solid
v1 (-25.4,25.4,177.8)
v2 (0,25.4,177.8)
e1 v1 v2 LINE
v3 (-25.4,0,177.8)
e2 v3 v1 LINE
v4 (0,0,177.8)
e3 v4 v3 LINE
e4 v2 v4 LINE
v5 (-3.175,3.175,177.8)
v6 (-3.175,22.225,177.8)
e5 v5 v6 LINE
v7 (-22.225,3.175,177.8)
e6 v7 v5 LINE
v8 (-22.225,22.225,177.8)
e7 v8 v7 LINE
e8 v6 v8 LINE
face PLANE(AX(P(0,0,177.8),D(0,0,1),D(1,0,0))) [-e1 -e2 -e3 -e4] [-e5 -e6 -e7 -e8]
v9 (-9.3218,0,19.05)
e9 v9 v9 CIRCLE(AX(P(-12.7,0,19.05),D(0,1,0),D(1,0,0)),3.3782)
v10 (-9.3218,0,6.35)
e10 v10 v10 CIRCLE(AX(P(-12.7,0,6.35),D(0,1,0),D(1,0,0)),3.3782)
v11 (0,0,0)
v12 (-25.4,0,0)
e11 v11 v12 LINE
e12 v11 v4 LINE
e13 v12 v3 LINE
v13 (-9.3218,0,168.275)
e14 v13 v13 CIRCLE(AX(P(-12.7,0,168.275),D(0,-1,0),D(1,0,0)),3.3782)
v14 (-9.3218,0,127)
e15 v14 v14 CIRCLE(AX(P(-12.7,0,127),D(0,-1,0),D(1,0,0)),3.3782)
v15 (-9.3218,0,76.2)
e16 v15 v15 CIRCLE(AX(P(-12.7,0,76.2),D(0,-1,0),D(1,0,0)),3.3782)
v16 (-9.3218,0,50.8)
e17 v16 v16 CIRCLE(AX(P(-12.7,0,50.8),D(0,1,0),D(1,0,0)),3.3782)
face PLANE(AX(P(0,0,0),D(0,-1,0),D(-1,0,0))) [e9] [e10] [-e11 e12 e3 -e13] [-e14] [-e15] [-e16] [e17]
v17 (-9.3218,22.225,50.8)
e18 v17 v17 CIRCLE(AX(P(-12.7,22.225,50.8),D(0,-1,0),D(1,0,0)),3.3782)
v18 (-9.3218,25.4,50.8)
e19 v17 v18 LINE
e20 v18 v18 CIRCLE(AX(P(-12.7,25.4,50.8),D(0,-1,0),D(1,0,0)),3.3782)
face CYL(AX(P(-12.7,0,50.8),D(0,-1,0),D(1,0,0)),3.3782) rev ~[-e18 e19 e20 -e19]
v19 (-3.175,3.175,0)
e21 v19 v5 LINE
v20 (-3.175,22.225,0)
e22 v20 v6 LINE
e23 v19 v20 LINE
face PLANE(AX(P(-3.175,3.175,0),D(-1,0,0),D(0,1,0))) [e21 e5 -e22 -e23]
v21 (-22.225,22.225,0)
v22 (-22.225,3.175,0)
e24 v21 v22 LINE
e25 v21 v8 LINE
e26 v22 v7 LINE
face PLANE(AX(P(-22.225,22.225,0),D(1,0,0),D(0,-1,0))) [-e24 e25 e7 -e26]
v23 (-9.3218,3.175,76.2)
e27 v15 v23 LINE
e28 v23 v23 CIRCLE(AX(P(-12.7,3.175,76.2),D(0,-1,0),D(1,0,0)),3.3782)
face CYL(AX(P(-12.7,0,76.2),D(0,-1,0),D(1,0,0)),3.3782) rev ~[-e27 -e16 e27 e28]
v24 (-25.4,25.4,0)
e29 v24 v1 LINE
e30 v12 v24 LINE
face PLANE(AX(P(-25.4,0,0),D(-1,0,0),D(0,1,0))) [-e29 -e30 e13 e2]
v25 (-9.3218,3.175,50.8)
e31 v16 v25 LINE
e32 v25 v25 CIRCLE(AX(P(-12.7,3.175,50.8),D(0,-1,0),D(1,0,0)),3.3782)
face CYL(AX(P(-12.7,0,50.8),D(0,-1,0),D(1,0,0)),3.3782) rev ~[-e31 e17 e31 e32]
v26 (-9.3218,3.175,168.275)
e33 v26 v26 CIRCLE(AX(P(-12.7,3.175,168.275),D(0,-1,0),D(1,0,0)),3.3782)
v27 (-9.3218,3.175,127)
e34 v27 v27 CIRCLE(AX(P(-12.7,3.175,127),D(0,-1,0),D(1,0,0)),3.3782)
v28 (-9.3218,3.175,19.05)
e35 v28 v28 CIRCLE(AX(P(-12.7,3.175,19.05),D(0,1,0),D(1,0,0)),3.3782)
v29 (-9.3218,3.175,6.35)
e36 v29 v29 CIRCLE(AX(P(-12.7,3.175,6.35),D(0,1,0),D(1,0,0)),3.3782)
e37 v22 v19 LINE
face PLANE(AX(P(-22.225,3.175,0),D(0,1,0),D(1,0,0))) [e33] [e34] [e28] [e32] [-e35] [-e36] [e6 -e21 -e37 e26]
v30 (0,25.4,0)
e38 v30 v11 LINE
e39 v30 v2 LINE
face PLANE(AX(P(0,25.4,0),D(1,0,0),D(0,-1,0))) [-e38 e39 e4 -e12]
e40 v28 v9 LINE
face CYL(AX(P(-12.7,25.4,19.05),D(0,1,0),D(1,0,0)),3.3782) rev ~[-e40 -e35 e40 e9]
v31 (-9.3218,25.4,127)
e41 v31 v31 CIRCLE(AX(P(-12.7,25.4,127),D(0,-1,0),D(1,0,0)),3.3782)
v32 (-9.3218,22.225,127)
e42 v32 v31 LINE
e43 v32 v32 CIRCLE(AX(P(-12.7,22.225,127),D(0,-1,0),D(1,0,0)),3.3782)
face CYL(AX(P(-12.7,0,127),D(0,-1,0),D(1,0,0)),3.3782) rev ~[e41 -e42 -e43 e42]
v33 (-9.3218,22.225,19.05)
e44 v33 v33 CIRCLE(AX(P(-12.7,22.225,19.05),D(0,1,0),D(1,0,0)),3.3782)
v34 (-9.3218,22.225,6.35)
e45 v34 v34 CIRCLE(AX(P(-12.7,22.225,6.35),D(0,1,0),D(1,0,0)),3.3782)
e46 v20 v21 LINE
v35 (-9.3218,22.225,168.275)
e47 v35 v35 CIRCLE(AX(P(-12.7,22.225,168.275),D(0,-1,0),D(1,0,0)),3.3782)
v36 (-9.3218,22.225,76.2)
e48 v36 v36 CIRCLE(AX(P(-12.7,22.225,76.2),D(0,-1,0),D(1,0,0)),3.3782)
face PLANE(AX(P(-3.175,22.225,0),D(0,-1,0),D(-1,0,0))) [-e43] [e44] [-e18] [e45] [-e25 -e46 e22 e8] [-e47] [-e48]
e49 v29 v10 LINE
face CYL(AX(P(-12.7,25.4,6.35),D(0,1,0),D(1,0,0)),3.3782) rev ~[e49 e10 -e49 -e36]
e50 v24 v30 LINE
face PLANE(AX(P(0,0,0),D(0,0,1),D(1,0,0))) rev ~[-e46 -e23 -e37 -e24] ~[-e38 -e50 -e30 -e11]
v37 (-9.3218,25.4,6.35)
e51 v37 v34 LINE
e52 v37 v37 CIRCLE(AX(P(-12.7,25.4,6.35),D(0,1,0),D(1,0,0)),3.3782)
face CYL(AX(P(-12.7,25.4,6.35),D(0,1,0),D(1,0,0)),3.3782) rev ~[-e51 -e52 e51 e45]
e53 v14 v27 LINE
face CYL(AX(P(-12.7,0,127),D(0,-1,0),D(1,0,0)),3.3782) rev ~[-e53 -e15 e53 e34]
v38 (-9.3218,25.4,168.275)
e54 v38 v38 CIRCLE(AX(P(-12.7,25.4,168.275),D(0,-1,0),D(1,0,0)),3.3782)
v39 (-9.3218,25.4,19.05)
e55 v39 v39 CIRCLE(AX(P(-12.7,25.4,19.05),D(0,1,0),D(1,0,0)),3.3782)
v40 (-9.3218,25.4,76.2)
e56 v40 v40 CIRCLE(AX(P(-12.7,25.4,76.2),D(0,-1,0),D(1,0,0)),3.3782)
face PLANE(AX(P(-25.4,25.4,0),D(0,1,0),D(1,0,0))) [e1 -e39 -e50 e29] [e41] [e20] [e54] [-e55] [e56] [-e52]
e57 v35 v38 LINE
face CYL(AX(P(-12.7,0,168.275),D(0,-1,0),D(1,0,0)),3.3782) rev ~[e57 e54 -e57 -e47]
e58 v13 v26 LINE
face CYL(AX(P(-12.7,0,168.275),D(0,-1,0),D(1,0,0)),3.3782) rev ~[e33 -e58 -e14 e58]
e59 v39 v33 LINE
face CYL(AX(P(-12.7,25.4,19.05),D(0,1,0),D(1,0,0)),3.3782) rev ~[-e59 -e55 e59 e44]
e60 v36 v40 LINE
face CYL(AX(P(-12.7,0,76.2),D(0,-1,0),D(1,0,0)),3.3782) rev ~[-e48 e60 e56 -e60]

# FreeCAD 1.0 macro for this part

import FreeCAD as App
import Part
import Sketcher
Q = App.Units.Quantity


def add_polygon(sketch, points):
    """Adds a closed chain of lines whose ends are joined by coincident constraints."""
    first, n = sketch.GeometryCount, len(points)
    for a, b in zip(points, points[1:] + points[:1]):
        sketch.addGeometry(Part.LineSegment(App.Vector(*a, 0), App.Vector(*b, 0)), False)
    for i in range(n):
        sketch.addConstraint(Sketcher.Constraint("Coincident", first + i, 2, first + (i + 1) % n, 1))

doc = App.newDocument("Part")
params = doc.addObject("Spreadsheet::Sheet", "Params")
for row, (alias, value) in enumerate([
    ("sketch1_width", "1 in"),
    ("pad1_length", "7 in"),
    ("sketch2_diameter", "0.266 in"),
    ("pocket1_length", "1 in"),
    ("sketch3_diameter", "0.266 in"),
    ("pocket2_length", "1 in"),
    ("sketch4_diameter", "0.266 in"),
    ("pocket3_length", "1 in"),
], start=1):
    params.set(f"A{row}", alias)
    params.set(f"B{row}", "=" + value)
    params.setAlias(f"B{row}", alias)

body = doc.addObject("PartDesign::Body", "Body")

sketch1 = body.newObject("Sketcher::SketchObject", "Sketch")
sketch1.AttachmentSupport = (doc.getObject("XY_Plane"), [""])
sketch1.MapMode = "FlatFace"
add_polygon(sketch1, [(-25.4, 0), (0, 0), (0, 25.4), (-25.4, 25.4)])
add_polygon(sketch1, [(-22.225, 22.225), (-3.175, 22.225), (-3.175, 3.175), (-22.225, 3.175)])
sketch1.addConstraint(Sketcher.Constraint("Horizontal", 0))
sketch1.addConstraint(Sketcher.Constraint("Vertical", 1))
sketch1.addConstraint(Sketcher.Constraint("Horizontal", 2))
sketch1.addConstraint(Sketcher.Constraint("Vertical", 3))
sketch1.addConstraint(Sketcher.Constraint("Horizontal", 4))
sketch1.addConstraint(Sketcher.Constraint("Vertical", 5))
sketch1.addConstraint(Sketcher.Constraint("Horizontal", 6))
sketch1.addConstraint(Sketcher.Constraint("Vertical", 7))
sketch1.addConstraint(Sketcher.Constraint("Coincident", 0, 2, -1, 1))
sketch1.addConstraint(Sketcher.Constraint("Equal", 2, 1))
sketch1.addConstraint(Sketcher.Constraint("Equal", 6, 5))
sketch1.addConstraint(Sketcher.Constraint("DistanceX", 0, 1, 0, 2, Q("1 in")))
sketch1.addConstraint(Sketcher.Constraint("DistanceX", 4, 2, -1, 1, Q("0.125 in")))
sketch1.addConstraint(Sketcher.Constraint("DistanceY", -1, 1, 5, 2, Q("0.125 in")))
sketch1.addConstraint(Sketcher.Constraint("DistanceY", 4, 2, 1, 2, Q("0.125 in")))
sketch1.setExpression("Constraints[19]", "Params.sketch1_width")
pad1 = body.newObject("PartDesign::Pad", "Pad")
pad1.Profile = sketch1
pad1.setExpression("Length", "Params.pad1_length")

sketch2 = body.newObject("Sketcher::SketchObject", "Sketch001")
sketch2.AttachmentSupport = (doc.getObject("XZ_Plane"), [""])
sketch2.MapMode = "FlatFace"
sketch2.AttachmentOffset = App.Placement(App.Vector(0, 0, -1 * 25.4), App.Rotation())
sketch2.addGeometry(Part.Circle(App.Vector(-12.7, 19.05, 0), App.Vector(0, 0, 1), 3.3782), False)
sketch2.addGeometry(Part.Circle(App.Vector(-12.7, 6.35, 0), App.Vector(0, 0, 1), 3.3782), False)
sketch2.addConstraint(Sketcher.Constraint("Equal", 0, 1))
sketch2.addConstraint(Sketcher.Constraint("Vertical", 0, 3, 1, 3))
sketch2.addConstraint(Sketcher.Constraint("Diameter", 0, Q("0.266 in")))
sketch2.addConstraint(Sketcher.Constraint("DistanceX", 0, 3, -1, 1, Q("0.5 in")))
sketch2.addConstraint(Sketcher.Constraint("DistanceY", 1, 3, 0, 3, Q("0.5 in")))
sketch2.addConstraint(Sketcher.Constraint("DistanceY", -1, 1, 0, 3, Q("0.75 in")))
sketch2.setExpression("Constraints[2]", "Params.sketch2_diameter")
pocket1 = body.newObject("PartDesign::Pocket", "Pocket")
pocket1.Profile = sketch2
pocket1.setExpression("Length", "Params.pocket1_length")
pocket1.Reversed = True

sketch3 = body.newObject("Sketcher::SketchObject", "Sketch002")
sketch3.AttachmentSupport = (doc.getObject("XZ_Plane"), [""])
sketch3.MapMode = "FlatFace"
sketch3.addGeometry(Part.Circle(App.Vector(-12.7, 76.2, 0), App.Vector(0, 0, 1), 3.3782), False)
sketch3.addGeometry(Part.Circle(App.Vector(-12.7, 50.8, 0), App.Vector(0, 0, 1), 3.3782), False)
sketch3.addConstraint(Sketcher.Constraint("Equal", 0, 1))
sketch3.addConstraint(Sketcher.Constraint("Vertical", 0, 3, 1, 3))
sketch3.addConstraint(Sketcher.Constraint("Diameter", 0, Q("0.266 in")))
sketch3.addConstraint(Sketcher.Constraint("DistanceY", -1, 1, 0, 3, Q("3 in")))
sketch3.addConstraint(Sketcher.Constraint("DistanceY", -1, 1, 1, 3, Q("2 in")))
sketch3.addConstraint(Sketcher.Constraint("DistanceX", 0, 3, -1, 1, Q("0.5 in")))
sketch3.setExpression("Constraints[2]", "Params.sketch3_diameter")
pocket2 = body.newObject("PartDesign::Pocket", "Pocket001")
pocket2.Profile = sketch3
pocket2.setExpression("Length", "Params.pocket2_length")

sketch4 = body.newObject("Sketcher::SketchObject", "Sketch003")
sketch4.AttachmentSupport = (doc.getObject("XZ_Plane"), [""])
sketch4.MapMode = "FlatFace"
sketch4.addGeometry(Part.Circle(App.Vector(-12.7, 127, 0), App.Vector(0, 0, 1), 3.3782), False)
sketch4.addGeometry(Part.Circle(App.Vector(-12.7, 168.275, 0), App.Vector(0, 0, 1), 3.3782), False)
sketch4.addConstraint(Sketcher.Constraint("Equal", 0, 1))
sketch4.addConstraint(Sketcher.Constraint("Vertical", 0, 3, 1, 3))
sketch4.addConstraint(Sketcher.Constraint("Diameter", 0, Q("0.266 in")))
sketch4.addConstraint(Sketcher.Constraint("DistanceY", -1, 1, 0, 3, Q("5 in")))
sketch4.addConstraint(Sketcher.Constraint("DistanceX", 0, 3, -1, 1, Q("0.5 in")))
sketch4.addConstraint(Sketcher.Constraint("DistanceY", -1, 1, 1, 3, Q("6.625 in")))
sketch4.setExpression("Constraints[2]", "Params.sketch4_diameter")
pocket3 = body.newObject("PartDesign::Pocket", "Pocket002")
pocket3.Profile = sketch4
pocket3.setExpression("Length", "Params.pocket3_length")

doc.recompute()
